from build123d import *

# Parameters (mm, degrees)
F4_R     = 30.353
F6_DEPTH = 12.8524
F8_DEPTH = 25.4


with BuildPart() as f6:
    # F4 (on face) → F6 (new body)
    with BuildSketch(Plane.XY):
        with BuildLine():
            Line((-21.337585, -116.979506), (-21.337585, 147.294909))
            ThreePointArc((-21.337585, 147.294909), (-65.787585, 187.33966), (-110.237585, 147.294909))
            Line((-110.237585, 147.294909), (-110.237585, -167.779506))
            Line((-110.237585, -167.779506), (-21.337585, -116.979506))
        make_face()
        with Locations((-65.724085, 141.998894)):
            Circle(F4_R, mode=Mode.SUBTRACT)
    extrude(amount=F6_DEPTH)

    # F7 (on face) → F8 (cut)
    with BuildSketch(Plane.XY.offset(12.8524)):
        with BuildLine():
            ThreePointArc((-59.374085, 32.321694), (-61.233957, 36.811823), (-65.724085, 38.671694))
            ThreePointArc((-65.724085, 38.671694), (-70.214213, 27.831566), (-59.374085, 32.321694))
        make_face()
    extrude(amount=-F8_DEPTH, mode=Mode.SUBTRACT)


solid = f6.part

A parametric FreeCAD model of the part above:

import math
import FreeCAD as App
import Part
import Sketcher
Q = App.Units.Quantity

doc = App.newDocument("Part")
body = doc.addObject("PartDesign::Body", "Body")

# Sketch on XY plane
sketch1 = doc.addObject("Sketcher::SketchObject", "Sketch")
body.addObject(sketch1)
sketch1.AttachmentSupport = (doc.XY_Plane, [""])
sketch1.MapMode = "FlatFace"
sketch1.addGeometry([
    Part.LineSegment(App.Vector(-21, -117, 0), App.Vector(-21, 147, 0)),  # 0
    Part.ArcOfCircle(Part.Circle(App.Vector(-66, 143, 0), App.Vector(0, 0, 1), 45), math.radians(6), math.radians(174)),  # 1
    Part.LineSegment(App.Vector(-110, 147, 0), App.Vector(-110, -168, 0)),  # 2
    Part.LineSegment(App.Vector(-110, -168, 0), App.Vector(-21, -117, 0)),  # 3
    Part.Circle(App.Vector(-66, 142, 0), App.Vector(0, 0, 1), 30),  # 4
], False)
sketch1.addConstraint([
    Sketcher.Constraint("Coincident", 0, 2, 1, 1),
    Sketcher.Constraint("Coincident", 1, 2, 2, 1),
    Sketcher.Constraint("Coincident", 2, 2, 3, 1),
    Sketcher.Constraint("Coincident", 3, 2, 0, 1),
    Sketcher.Constraint("Vertical", 0),
    Sketcher.Constraint("Vertical", 2),
    Sketcher.Constraint("Horizontal", 0, 2, 1, 2),
    Sketcher.Constraint("Diameter", 4, Q("2.39 in")),
    Sketcher.Constraint("DistanceY", 2, 2, 3, 2, Q("2 in")),
    Sketcher.Constraint("DistanceX", 1, 2, 0, 2, Q("3.5 in")),
    Sketcher.Constraint("DistanceY", 2, 2, 4, 3, Q("12.196 in")),
    Sketcher.Constraint("Radius", 1, Q("44.692307 mm")),
    Sketcher.Constraint("DistanceX", 1, 3, 4, 3, Q("0.0025 in")),
    Sketcher.Constraint("DistanceY", 0, 1, 0, 2, Q("264.274415 mm")),
    Sketcher.Constraint("DistanceY", -1, 1, 0, 2, Q("147.294909 mm")),
    Sketcher.Constraint("DistanceX", 1, 3, -1, 1, Q("65.787585 mm")),
])
pad1 = doc.addObject("PartDesign::Pad", "Pad")
body.addObject(pad1)
pad1.Profile = sketch1
pad1.Length = Q("0.506 in")

# Sketch on XY plane
sketch2 = doc.addObject("Sketcher::SketchObject", "Sketch001")
body.addObject(sketch2)
sketch2.AttachmentSupport = (doc.XY_Plane, [""])
sketch2.MapMode = "FlatFace"
sketch2.AttachmentOffset = App.Placement(App.Vector(0, 0, 0.506 * 25.4), App.Rotation())
sketch2.addGeometry([
    Part.ArcOfCircle(Part.Circle(App.Vector(-66, 32, 0), App.Vector(0, 0, 1), 6), math.radians(0), math.radians(90)),
    Part.ArcOfCircle(Part.Circle(App.Vector(-66, 32, 0), App.Vector(0, 0, 1), 6), math.radians(90), math.radians(360)),
], False)
sketch2.addConstraint([
    Sketcher.Constraint("Tangent", 0, 1, 1, 2),
    Sketcher.Constraint("Coincident", 1, 1, 0, 2),
    Sketcher.Constraint("Horizontal", 1, 3, 0, 1),
    Sketcher.Constraint("Vertical", 0, 3, 1, 1),
    Sketcher.Constraint("Radius", 0, Q("0.2499999 in")),
    Sketcher.Constraint("DistanceX", 0, 3, -1, 1, Q("65.724084 mm")),
    Sketcher.Constraint("DistanceY", -1, 1, 0, 3, Q("32.321695 mm")),
])
pocket1 = doc.addObject("PartDesign::Pocket", "Pocket")
body.addObject(pocket1)
pocket1.Profile = sketch2
pocket1.Length = Q("1 in")

doc.recompute()
